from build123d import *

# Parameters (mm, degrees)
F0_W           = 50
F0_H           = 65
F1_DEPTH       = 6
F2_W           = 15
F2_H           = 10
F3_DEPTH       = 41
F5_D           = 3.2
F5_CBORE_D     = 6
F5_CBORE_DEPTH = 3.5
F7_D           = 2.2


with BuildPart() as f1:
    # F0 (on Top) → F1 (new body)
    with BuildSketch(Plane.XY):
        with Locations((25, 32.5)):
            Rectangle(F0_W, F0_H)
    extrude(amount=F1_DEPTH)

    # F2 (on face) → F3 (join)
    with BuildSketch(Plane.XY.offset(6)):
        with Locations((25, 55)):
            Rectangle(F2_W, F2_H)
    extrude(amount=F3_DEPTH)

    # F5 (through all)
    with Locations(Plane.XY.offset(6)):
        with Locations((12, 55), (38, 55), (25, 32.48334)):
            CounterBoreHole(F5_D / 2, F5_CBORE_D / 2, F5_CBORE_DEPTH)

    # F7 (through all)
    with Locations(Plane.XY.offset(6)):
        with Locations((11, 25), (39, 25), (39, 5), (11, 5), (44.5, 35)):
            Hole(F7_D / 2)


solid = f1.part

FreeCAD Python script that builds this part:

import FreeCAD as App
import Part
import Sketcher

V = App.Vector

doc = App.newDocument("Part")
body = doc.addObject("PartDesign::Body", "Body")

# Sketch on XY plane
sketch1 = body.newObject("Sketcher::SketchObject", "Sketch")
sketch1.AttachmentSupport = (doc.getObject("XY_Plane"), [""])
sketch1.MapMode = "FlatFace"
sketch1.addGeometry([
    Part.LineSegment(V(0, 65, 0), V(0, 0, 0)),
    Part.LineSegment(V(0, 0, 0), V(50, 0, 0)),
    Part.LineSegment(V(50, 0, 0), V(50, 65, 0)),
    Part.LineSegment(V(50, 65, 0), V(0, 65, 0)),
], False)
sketch1.addConstraint([
    Sketcher.Constraint("Coincident", 0, 2, 1, 1),
    Sketcher.Constraint("Coincident", 1, 2, 2, 1),
    Sketcher.Constraint("Coincident", 2, 2, 3, 1),
    Sketcher.Constraint("Coincident", 3, 2, 0, 1),
    Sketcher.Constraint("Vertical", 0),
    Sketcher.Constraint("Horizontal", 1),
    Sketcher.Constraint("Vertical", 2),
    Sketcher.Constraint("Horizontal", 3),
    Sketcher.Constraint("Coincident", 0, 2, -1, 1),
    Sketcher.Constraint("DistanceX", 1, 1, 1, 2, 50.0),
    Sketcher.Constraint("DistanceY", 0, 2, 0, 1, 65.0),
])
pad1 = body.newObject("PartDesign::Pad", "Pad")
pad1.Profile = sketch1
pad1.Length = 6

# Sketch on XY plane
sketch2 = body.newObject("Sketcher::SketchObject", "Sketch001")
sketch2.AttachmentSupport = (doc.getObject("XY_Plane"), [""])
sketch2.MapMode = "FlatFace"
sketch2.AttachmentOffset = App.Placement(V(0, 0, 6), App.Rotation())
sketch2.addGeometry([
    Part.LineSegment(V(18, 60, 0), V(18, 50, 0)),
    Part.LineSegment(V(18, 50, 0), V(32, 50, 0)),
    Part.LineSegment(V(32, 50, 0), V(32, 60, 0)),
    Part.LineSegment(V(32, 60, 0), V(18, 60, 0)),
], False)
sketch2.addConstraint([
    Sketcher.Constraint("Coincident", 0, 2, 1, 1),
    Sketcher.Constraint("Coincident", 1, 2, 2, 1),
    Sketcher.Constraint("Coincident", 2, 2, 3, 1),
    Sketcher.Constraint("Coincident", 3, 2, 0, 1),
    Sketcher.Constraint("Vertical", 0),
    Sketcher.Constraint("Horizontal", 1),
    Sketcher.Constraint("Vertical", 2),
    Sketcher.Constraint("Horizontal", 3),
    Sketcher.Constraint("DistanceX", 1, 1, 1, 2, 15.0),
    Sketcher.Constraint("DistanceY", 0, 2, 0, 1, 10.0),
    Sketcher.Constraint("DistanceY", -1, 1, 0, 2, 50.0),
    Sketcher.Constraint("DistanceX", -1, 1, 0, 2, 17.5),
])
pad2 = body.newObject("PartDesign::Pad", "Pad001")
pad2.Profile = sketch2
pad2.Length = 41

# Sketch on XY plane
sketch3 = body.newObject("Sketcher::SketchObject", "Sketch002")
sketch3.AttachmentSupport = (doc.getObject("XY_Plane"), [""])
sketch3.MapMode = "FlatFace"
sketch3.AttachmentOffset = App.Placement(V(0, 0, 6), App.Rotation())
sketch3.addGeometry([
    Part.Circle(V(12, 55, 0), V(0, 0, 1), 1.6),
    Part.Circle(V(38, 55, 0), V(0, 0, 1), 1.6),
    Part.Circle(V(25, 32.5, 0), V(0, 0, 1), 1.6),
], False)
sketch3.addConstraint([
    Sketcher.Constraint("Equal", 0, 1),
    Sketcher.Constraint("Equal", 1, 2),
    Sketcher.Constraint("Horizontal", 0, 3, 1, 3),
    Sketcher.Constraint("Diameter", 0, 3.2),
    Sketcher.Constraint("DistanceX", -1, 1, 0, 3, 12.0),
    Sketcher.Constraint("DistanceY", -1, 1, 0, 3, 55.0),
    Sketcher.Constraint("DistanceX", -1, 1, 1, 3, 38.0),
    Sketcher.Constraint("DistanceX", -1, 1, 2, 3, 25.0),
    Sketcher.Constraint("DistanceY", -1, 1, 2, 3, 32.48334),
])
doc.recompute()
hole = body.newObject("PartDesign::Hole", "Hole")
hole.Profile = sketch3
hole.ThreadType = "None"
hole.Diameter = 3.2
hole.DepthType = "ThroughAll"
hole.HoleCutType = "Counterbore"
hole.HoleCutDiameter = 6
hole.HoleCutDepth = 3.5

# Sketch on XY plane
sketch4 = body.newObject("Sketcher::SketchObject", "Sketch003")
sketch4.AttachmentSupport = (doc.getObject("XY_Plane"), [""])
sketch4.MapMode = "FlatFace"
sketch4.AttachmentOffset = App.Placement(V(0, 0, 6), App.Rotation())
sketch4.addGeometry([
    Part.Circle(V(11, 25, 0), V(0, 0, 1), 1.1),  # 0
    Part.Circle(V(39, 25, 0), V(0, 0, 1), 1.1),  # 1
    Part.Circle(V(39, 5, 0), V(0, 0, 1), 1.1),  # 2
    Part.Circle(V(11, 5, 0), V(0, 0, 1), 1.1),  # 3
    Part.Circle(V(44.5, 35, 0), V(0, 0, 1), 1.1),  # 4
], False)
sketch4.addConstraint([
    Sketcher.Constraint("Equal", 0, 1),
    Sketcher.Constraint("Equal", 1, 2),
    Sketcher.Constraint("Equal", 2, 3),
    Sketcher.Constraint("Equal", 3, 4),
    Sketcher.Constraint("Horizontal", 0, 3, 1, 3),
    Sketcher.Constraint("Horizontal", 2, 3, 3, 3),
    Sketcher.Constraint("Vertical", 1, 3, 2, 3),
    Sketcher.Constraint("Vertical", 0, 3, 3, 3),
    Sketcher.Constraint("Diameter", 0, 2.2),
    Sketcher.Constraint("DistanceX", -1, 1, 0, 3, 11.0),
    Sketcher.Constraint("DistanceY", -1, 1, 0, 3, 25.0),
    Sketcher.Constraint("DistanceX", -1, 1, 1, 3, 39.0),
    Sketcher.Constraint("DistanceY", -1, 1, 2, 3, 5.0),
    Sketcher.Constraint("DistanceY", -1, 1, 4, 3, 35.0),
    Sketcher.Constraint("DistanceX", -1, 1, 4, 3, 44.5),
])
doc.recompute()
hole2 = body.newObject("PartDesign::Hole", "Hole001")
hole2.Profile = sketch4
hole2.ThreadType = "None"
hole2.Diameter = 2.2
hole2.DepthType = "ThroughAll"

doc.recompute()
